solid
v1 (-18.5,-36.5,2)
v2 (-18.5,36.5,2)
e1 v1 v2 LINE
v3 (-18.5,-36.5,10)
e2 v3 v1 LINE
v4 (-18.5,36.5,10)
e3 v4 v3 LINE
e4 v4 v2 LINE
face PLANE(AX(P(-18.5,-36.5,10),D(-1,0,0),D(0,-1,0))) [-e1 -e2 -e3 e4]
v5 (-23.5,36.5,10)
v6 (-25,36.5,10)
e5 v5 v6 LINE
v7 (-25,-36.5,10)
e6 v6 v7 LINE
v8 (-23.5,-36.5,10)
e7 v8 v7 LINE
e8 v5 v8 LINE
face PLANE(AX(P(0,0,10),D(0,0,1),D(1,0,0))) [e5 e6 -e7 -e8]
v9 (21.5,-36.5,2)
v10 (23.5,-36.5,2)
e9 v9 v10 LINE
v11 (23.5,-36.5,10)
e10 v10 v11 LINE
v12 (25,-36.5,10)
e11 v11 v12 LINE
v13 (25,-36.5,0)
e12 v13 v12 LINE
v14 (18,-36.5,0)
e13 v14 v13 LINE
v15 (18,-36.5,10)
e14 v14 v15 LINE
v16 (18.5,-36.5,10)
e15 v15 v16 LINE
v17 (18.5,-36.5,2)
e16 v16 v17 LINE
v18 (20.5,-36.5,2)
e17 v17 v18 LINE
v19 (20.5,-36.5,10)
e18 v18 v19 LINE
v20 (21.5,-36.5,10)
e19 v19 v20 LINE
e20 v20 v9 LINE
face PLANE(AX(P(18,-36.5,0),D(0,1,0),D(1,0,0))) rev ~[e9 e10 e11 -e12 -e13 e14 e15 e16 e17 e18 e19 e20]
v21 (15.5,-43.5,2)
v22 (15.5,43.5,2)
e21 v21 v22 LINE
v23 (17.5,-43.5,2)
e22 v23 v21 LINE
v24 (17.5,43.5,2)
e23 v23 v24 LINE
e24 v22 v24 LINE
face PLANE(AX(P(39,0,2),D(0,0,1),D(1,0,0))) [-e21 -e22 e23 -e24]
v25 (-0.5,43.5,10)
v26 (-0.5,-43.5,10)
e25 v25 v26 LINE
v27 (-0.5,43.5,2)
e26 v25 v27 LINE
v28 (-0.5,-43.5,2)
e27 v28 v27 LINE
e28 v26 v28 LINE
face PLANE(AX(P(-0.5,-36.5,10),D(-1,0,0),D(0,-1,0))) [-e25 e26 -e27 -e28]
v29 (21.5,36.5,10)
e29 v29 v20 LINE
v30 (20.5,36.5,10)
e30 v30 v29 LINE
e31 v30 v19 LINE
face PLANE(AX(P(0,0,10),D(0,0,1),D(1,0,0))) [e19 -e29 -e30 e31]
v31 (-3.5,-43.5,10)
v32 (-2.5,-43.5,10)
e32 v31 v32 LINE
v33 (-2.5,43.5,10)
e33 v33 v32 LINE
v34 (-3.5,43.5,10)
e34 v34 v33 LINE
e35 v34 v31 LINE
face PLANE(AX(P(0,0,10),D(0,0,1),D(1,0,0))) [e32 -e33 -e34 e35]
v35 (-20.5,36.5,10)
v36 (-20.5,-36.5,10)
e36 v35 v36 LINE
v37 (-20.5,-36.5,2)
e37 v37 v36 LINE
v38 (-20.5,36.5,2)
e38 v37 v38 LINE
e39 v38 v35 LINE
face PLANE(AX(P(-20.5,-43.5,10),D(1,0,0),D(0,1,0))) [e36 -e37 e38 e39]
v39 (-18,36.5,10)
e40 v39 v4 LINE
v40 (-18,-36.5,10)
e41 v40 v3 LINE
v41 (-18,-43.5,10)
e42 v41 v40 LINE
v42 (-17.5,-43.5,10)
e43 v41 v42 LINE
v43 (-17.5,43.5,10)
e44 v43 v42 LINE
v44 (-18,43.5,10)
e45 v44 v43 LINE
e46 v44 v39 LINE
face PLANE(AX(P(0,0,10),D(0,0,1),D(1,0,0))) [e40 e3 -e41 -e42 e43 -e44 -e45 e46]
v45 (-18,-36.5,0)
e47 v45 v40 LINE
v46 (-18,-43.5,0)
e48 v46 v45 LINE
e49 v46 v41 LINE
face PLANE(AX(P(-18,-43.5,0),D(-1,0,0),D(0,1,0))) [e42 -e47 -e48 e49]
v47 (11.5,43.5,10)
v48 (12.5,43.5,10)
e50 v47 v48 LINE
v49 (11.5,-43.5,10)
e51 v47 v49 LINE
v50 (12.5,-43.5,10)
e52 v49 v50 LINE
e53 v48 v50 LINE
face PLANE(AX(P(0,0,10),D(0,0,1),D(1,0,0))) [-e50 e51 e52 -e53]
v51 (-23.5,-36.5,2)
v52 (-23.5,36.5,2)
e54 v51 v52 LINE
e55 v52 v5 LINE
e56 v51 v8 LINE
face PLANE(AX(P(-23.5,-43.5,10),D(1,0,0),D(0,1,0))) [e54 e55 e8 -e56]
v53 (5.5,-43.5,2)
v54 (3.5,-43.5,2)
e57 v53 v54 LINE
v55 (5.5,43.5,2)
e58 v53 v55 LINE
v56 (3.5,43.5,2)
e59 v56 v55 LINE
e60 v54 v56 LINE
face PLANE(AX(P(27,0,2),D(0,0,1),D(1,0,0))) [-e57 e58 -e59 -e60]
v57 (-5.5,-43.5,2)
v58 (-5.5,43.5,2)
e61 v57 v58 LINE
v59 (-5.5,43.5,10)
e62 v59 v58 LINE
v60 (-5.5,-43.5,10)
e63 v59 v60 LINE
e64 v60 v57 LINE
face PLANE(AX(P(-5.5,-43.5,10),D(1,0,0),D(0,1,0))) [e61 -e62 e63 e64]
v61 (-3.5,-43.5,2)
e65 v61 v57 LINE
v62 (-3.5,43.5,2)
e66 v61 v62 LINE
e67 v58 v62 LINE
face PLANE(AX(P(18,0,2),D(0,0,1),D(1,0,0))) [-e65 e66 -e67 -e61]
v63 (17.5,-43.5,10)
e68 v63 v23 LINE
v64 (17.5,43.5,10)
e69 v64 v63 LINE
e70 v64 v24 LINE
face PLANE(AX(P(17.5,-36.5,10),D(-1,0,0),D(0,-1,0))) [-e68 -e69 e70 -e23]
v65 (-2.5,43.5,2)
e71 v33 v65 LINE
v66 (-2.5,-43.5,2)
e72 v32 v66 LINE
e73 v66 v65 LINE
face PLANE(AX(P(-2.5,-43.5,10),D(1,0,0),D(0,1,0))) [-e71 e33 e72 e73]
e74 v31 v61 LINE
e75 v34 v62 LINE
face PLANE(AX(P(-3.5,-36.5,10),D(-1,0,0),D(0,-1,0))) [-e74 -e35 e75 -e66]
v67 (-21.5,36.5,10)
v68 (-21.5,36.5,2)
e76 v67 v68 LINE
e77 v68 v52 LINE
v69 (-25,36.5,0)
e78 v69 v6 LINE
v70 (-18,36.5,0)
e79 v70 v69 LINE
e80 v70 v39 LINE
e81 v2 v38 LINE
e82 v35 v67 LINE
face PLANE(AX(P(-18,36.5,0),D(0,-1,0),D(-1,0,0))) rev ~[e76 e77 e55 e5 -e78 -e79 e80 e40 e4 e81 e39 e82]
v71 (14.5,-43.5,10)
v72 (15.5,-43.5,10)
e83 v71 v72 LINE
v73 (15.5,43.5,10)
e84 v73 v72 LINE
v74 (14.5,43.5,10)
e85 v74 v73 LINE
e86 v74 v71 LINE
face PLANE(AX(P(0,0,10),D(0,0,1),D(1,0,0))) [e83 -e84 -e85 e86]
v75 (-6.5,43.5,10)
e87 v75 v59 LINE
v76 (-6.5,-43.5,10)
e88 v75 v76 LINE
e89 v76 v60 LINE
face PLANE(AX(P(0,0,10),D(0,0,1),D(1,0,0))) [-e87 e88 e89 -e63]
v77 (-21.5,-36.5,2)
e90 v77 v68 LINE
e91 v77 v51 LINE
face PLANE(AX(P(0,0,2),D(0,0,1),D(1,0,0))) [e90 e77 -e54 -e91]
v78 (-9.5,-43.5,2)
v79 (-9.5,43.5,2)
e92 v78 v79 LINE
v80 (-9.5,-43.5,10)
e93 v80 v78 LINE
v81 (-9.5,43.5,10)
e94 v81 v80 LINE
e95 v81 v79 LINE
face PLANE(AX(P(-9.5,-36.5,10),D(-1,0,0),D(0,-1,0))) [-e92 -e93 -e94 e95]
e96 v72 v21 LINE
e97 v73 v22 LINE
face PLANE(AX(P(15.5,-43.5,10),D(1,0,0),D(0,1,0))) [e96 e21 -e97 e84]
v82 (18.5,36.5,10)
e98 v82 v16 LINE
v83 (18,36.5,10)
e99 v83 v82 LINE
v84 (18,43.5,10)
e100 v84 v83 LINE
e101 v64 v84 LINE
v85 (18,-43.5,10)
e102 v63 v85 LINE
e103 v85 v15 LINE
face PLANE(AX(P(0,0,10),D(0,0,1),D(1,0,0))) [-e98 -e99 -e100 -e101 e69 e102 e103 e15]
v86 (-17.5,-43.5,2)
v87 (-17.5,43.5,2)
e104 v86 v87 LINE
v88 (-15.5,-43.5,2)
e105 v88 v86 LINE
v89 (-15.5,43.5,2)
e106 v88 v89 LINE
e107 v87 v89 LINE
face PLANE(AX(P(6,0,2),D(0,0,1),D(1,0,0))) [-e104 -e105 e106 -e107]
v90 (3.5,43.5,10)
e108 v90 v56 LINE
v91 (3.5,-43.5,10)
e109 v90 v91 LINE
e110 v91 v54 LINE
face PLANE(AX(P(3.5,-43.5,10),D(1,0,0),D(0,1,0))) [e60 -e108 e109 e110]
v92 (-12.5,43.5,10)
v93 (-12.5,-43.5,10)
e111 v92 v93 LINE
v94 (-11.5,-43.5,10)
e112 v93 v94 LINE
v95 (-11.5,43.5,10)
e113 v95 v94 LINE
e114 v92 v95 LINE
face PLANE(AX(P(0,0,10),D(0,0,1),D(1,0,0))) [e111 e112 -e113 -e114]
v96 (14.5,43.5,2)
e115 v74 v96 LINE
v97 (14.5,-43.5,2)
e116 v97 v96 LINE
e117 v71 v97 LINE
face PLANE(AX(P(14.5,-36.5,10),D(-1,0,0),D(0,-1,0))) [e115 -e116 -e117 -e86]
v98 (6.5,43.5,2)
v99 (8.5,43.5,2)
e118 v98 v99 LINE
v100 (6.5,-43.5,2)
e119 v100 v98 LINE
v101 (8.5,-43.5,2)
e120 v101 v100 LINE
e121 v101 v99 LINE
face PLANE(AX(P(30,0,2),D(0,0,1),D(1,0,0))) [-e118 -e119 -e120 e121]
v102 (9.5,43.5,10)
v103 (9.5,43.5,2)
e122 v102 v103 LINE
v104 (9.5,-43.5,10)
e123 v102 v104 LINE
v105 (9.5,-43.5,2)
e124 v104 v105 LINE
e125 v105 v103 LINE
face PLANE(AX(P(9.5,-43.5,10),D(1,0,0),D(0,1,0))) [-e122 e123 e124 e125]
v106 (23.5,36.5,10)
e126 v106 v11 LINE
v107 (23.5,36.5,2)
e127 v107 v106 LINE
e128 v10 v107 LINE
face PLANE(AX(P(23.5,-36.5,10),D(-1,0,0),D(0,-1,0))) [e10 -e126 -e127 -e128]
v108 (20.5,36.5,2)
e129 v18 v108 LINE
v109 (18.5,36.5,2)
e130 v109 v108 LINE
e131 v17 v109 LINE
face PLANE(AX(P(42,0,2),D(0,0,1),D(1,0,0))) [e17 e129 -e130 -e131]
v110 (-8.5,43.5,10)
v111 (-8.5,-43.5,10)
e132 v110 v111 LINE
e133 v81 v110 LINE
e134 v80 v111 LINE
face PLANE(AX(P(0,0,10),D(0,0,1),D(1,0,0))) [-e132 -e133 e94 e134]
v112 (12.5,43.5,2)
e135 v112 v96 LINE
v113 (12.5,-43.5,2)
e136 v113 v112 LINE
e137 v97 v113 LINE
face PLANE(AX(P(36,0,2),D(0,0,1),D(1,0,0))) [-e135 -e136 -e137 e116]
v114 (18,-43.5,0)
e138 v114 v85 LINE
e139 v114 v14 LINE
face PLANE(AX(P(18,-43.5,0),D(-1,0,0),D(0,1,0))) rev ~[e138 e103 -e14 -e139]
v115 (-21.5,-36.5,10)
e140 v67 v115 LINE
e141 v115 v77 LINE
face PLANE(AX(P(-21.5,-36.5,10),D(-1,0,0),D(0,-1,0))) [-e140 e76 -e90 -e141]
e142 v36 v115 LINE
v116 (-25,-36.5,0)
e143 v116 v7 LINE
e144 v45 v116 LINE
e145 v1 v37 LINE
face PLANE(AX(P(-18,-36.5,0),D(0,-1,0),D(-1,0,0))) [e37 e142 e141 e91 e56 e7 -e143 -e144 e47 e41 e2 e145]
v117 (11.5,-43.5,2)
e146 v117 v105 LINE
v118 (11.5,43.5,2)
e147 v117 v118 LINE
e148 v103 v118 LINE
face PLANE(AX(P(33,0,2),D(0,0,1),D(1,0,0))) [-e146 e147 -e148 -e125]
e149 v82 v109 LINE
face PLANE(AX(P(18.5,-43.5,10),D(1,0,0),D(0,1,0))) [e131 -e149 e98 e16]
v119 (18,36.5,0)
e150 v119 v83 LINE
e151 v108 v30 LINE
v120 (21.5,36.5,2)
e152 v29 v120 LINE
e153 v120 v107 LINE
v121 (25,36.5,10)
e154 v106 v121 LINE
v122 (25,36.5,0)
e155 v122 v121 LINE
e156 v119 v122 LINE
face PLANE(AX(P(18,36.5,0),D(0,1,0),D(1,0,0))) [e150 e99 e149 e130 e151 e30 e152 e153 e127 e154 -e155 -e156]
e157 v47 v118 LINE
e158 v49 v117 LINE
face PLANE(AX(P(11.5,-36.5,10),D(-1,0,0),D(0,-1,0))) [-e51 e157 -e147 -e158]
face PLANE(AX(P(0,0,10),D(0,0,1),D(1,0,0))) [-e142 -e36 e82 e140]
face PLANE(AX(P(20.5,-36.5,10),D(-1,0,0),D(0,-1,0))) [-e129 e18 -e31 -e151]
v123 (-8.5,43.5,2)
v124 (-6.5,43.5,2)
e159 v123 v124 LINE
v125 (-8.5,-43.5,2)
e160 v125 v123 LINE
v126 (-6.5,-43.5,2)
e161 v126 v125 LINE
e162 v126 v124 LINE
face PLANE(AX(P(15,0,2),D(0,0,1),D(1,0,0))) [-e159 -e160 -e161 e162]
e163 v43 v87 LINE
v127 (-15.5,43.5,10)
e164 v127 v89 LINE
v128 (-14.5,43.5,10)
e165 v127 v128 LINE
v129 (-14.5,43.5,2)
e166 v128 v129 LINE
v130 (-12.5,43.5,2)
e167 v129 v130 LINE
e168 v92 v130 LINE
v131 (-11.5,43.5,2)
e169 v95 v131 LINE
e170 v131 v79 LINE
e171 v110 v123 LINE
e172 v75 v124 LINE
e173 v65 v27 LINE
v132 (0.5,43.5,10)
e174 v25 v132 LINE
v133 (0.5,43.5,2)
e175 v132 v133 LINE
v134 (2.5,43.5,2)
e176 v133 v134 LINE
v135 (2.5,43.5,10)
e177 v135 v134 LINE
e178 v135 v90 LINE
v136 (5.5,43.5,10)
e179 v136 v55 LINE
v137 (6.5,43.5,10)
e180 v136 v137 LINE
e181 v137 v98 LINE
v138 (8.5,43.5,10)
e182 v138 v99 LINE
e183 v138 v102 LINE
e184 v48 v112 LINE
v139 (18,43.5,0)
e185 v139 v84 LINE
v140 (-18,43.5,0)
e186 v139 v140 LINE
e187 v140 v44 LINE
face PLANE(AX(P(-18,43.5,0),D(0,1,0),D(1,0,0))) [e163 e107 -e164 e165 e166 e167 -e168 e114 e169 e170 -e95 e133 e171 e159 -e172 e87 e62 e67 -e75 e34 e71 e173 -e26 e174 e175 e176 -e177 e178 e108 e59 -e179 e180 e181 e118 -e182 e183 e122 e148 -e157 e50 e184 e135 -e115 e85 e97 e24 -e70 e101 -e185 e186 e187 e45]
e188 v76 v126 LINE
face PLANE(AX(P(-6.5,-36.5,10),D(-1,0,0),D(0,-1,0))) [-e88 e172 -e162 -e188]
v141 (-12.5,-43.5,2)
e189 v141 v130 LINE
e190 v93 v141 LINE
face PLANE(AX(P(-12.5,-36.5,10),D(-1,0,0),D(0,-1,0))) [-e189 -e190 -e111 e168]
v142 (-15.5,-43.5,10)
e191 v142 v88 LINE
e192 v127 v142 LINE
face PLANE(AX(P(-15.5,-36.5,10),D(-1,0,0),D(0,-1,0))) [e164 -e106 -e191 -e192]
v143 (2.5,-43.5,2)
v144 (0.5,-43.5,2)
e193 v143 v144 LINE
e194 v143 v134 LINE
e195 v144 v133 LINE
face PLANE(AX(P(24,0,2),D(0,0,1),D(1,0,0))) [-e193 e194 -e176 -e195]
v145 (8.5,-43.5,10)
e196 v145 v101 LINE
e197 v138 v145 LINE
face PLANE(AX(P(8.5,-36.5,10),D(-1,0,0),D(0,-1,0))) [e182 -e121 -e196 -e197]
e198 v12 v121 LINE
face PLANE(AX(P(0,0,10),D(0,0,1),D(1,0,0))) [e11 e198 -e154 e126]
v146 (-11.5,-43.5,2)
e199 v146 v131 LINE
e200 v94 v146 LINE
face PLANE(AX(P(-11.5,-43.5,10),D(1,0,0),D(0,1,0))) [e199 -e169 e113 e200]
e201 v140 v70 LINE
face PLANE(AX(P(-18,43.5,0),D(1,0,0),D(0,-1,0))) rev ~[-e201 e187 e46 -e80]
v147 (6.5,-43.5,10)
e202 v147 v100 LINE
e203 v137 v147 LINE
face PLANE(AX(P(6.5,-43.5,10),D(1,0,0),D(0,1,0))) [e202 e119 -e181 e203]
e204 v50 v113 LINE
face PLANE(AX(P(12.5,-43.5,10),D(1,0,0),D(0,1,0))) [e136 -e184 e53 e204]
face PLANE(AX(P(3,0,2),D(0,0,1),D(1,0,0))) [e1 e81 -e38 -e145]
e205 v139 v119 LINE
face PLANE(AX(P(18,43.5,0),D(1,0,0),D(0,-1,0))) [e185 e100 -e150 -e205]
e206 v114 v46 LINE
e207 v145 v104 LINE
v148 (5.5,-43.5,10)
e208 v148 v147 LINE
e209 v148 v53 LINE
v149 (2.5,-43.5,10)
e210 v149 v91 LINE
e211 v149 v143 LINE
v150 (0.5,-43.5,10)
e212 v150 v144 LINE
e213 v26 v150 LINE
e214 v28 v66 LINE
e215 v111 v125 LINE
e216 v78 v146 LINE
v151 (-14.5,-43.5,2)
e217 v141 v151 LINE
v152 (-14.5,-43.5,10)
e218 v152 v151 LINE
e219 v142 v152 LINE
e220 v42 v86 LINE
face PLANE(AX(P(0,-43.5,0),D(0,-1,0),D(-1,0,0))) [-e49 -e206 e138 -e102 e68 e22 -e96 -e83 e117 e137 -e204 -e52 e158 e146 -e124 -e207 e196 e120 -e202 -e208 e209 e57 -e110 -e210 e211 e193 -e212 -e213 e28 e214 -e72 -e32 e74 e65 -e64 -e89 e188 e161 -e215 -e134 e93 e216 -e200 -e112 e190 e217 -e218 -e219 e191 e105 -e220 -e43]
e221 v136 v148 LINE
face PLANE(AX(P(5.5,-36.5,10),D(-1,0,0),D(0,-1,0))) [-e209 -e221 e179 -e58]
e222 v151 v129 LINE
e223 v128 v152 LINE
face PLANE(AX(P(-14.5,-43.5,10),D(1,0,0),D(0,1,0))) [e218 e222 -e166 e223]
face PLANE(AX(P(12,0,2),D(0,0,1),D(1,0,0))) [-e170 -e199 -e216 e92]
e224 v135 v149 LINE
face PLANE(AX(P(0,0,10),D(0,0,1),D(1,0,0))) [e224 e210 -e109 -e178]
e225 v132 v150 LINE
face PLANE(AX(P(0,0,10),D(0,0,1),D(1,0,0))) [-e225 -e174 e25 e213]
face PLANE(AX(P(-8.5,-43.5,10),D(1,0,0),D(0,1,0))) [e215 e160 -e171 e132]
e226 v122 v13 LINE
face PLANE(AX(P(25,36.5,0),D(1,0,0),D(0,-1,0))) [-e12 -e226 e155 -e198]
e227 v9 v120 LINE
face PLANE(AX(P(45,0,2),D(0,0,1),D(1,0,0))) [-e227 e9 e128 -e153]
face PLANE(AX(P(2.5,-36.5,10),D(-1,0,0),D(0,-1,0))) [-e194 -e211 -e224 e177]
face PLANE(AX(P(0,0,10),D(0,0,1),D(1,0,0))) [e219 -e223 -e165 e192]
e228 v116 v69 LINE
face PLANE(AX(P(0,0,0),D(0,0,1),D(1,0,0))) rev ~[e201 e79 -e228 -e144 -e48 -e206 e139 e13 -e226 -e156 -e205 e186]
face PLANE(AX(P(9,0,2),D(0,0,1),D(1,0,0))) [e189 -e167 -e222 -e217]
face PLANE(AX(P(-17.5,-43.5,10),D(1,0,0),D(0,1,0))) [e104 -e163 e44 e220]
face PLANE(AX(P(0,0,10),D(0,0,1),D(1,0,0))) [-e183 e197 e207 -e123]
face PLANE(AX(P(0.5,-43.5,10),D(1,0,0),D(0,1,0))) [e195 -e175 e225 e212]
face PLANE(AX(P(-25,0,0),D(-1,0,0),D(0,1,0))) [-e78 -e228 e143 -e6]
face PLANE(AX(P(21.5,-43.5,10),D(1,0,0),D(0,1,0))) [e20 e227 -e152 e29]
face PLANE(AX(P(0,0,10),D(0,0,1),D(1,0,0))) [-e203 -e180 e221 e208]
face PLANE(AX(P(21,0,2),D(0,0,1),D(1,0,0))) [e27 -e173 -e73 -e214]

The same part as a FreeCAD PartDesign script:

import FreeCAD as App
import Part
import Sketcher

V = App.Vector


def add_polygon(sketch, points):
    """Adds a closed chain of lines whose ends are joined by coincident constraints."""
    first, n = sketch.GeometryCount, len(points)
    for a, b in zip(points, points[1:] + points[:1]):
        sketch.addGeometry(Part.LineSegment(App.Vector(*a, 0), App.Vector(*b, 0)), False)
    for i in range(n):
        sketch.addConstraint(Sketcher.Constraint("Coincident", first + i, 2, first + (i + 1) % n, 1))

doc = App.newDocument("Part")
body = doc.addObject("PartDesign::Body", "Body")

# Sketch on XY plane
sketch1 = body.newObject("Sketcher::SketchObject", "Sketch")
sketch1.AttachmentSupport = (doc.getObject("XY_Plane"), [""])
sketch1.MapMode = "FlatFace"
add_polygon(sketch1, [(-18, 44), (-18, 36), (-25, 36), (-25, -36), (-18, -36), (-18, -44), (18, -44), (18, -36), (25, -36), (25, 36), (18, 36), (18, 44)])  # lines 0-11
sketch1.addConstraint(Sketcher.Constraint("Vertical", 0))
sketch1.addConstraint(Sketcher.Constraint("Horizontal", 1))
sketch1.addConstraint(Sketcher.Constraint("Vertical", 2))
sketch1.addConstraint(Sketcher.Constraint("Horizontal", 3))
sketch1.addConstraint(Sketcher.Constraint("Vertical", 4))
sketch1.addConstraint(Sketcher.Constraint("Horizontal", 5))
sketch1.addConstraint(Sketcher.Constraint("Vertical", 6))
sketch1.addConstraint(Sketcher.Constraint("Horizontal", 7))
sketch1.addConstraint(Sketcher.Constraint("Vertical", 8))
sketch1.addConstraint(Sketcher.Constraint("Horizontal", 9))
sketch1.addConstraint(Sketcher.Constraint("Vertical", 10))
sketch1.addConstraint(Sketcher.Constraint("Horizontal", 11))
sketch1.addConstraint(Sketcher.Constraint("Symmetric", 0, 2, 6, 2, -1, 1))
sketch1.addConstraint(Sketcher.Constraint("Symmetric", 2, 2, 8, 2, -1, 1))
sketch1.addConstraint(Sketcher.Constraint("Symmetric", 4, 2, 10, 2, -1, 1))
sketch1.addConstraint(Sketcher.Constraint("Symmetric", 3, 2, 6, 2, -2))
sketch1.addConstraint(Sketcher.Constraint("Equal", 9, 0))
sketch1.addConstraint(Sketcher.Constraint("DistanceX", 1, 2, 1, 1, 7.0))
sketch1.addConstraint(Sketcher.Constraint("DistanceX", 2, 2, 7, 2, 50.0))
sketch1.addConstraint(Sketcher.Constraint("DistanceY", 2, 2, 2, 1, 73.0))
pad1 = body.newObject("PartDesign::Pad", "Pad")
pad1.Profile = sketch1
pad1.Length = 10

# Sketch on XY plane
sketch2 = body.newObject("Sketcher::SketchObject", "Sketch001")
sketch2.AttachmentSupport = (doc.getObject("XY_Plane"), [""])
sketch2.MapMode = "FlatFace"
sketch2.AttachmentOffset = App.Placement(V(0, 0, 10), App.Rotation())
add_polygon(sketch2, [(-21.5, -43.5), (-21.5, 43.5), (-23.5, 43.5), (-23.5, -43.5)])  # lines 0-3
sketch2.addConstraint(Sketcher.Constraint("Vertical", 0))
sketch2.addConstraint(Sketcher.Constraint("Horizontal", 1))
sketch2.addConstraint(Sketcher.Constraint("Vertical", 2))
sketch2.addConstraint(Sketcher.Constraint("Horizontal", 3))
sketch2.addConstraint(Sketcher.Constraint("DistanceX", 1, 2, 1, 1, 2.0))
sketch2.addConstraint(Sketcher.Constraint("DistanceY", 0, 1, 0, 2, 87.0))
sketch2.addConstraint(Sketcher.Constraint("DistanceX", 0, 2, -1, 1, 21.5))
sketch2.addConstraint(Sketcher.Constraint("DistanceY", -1, 1, 0, 2, 43.5))
pocket1 = body.newObject("PartDesign::Pocket", "Pocket")
pocket1.Profile = sketch2
pocket1.Length = 8
doc.recompute()

linearpattern = body.newObject("PartDesign::LinearPattern", "LinearPattern")
linearpattern.Originals = [pocket1]
linearpattern.Direction = (doc.getObject("X_Axis"), [""])
linearpattern.Mode = "offset"
linearpattern.Offset = 3
linearpattern.Occurrences = 16
body.Tip = linearpattern

doc.recompute()
